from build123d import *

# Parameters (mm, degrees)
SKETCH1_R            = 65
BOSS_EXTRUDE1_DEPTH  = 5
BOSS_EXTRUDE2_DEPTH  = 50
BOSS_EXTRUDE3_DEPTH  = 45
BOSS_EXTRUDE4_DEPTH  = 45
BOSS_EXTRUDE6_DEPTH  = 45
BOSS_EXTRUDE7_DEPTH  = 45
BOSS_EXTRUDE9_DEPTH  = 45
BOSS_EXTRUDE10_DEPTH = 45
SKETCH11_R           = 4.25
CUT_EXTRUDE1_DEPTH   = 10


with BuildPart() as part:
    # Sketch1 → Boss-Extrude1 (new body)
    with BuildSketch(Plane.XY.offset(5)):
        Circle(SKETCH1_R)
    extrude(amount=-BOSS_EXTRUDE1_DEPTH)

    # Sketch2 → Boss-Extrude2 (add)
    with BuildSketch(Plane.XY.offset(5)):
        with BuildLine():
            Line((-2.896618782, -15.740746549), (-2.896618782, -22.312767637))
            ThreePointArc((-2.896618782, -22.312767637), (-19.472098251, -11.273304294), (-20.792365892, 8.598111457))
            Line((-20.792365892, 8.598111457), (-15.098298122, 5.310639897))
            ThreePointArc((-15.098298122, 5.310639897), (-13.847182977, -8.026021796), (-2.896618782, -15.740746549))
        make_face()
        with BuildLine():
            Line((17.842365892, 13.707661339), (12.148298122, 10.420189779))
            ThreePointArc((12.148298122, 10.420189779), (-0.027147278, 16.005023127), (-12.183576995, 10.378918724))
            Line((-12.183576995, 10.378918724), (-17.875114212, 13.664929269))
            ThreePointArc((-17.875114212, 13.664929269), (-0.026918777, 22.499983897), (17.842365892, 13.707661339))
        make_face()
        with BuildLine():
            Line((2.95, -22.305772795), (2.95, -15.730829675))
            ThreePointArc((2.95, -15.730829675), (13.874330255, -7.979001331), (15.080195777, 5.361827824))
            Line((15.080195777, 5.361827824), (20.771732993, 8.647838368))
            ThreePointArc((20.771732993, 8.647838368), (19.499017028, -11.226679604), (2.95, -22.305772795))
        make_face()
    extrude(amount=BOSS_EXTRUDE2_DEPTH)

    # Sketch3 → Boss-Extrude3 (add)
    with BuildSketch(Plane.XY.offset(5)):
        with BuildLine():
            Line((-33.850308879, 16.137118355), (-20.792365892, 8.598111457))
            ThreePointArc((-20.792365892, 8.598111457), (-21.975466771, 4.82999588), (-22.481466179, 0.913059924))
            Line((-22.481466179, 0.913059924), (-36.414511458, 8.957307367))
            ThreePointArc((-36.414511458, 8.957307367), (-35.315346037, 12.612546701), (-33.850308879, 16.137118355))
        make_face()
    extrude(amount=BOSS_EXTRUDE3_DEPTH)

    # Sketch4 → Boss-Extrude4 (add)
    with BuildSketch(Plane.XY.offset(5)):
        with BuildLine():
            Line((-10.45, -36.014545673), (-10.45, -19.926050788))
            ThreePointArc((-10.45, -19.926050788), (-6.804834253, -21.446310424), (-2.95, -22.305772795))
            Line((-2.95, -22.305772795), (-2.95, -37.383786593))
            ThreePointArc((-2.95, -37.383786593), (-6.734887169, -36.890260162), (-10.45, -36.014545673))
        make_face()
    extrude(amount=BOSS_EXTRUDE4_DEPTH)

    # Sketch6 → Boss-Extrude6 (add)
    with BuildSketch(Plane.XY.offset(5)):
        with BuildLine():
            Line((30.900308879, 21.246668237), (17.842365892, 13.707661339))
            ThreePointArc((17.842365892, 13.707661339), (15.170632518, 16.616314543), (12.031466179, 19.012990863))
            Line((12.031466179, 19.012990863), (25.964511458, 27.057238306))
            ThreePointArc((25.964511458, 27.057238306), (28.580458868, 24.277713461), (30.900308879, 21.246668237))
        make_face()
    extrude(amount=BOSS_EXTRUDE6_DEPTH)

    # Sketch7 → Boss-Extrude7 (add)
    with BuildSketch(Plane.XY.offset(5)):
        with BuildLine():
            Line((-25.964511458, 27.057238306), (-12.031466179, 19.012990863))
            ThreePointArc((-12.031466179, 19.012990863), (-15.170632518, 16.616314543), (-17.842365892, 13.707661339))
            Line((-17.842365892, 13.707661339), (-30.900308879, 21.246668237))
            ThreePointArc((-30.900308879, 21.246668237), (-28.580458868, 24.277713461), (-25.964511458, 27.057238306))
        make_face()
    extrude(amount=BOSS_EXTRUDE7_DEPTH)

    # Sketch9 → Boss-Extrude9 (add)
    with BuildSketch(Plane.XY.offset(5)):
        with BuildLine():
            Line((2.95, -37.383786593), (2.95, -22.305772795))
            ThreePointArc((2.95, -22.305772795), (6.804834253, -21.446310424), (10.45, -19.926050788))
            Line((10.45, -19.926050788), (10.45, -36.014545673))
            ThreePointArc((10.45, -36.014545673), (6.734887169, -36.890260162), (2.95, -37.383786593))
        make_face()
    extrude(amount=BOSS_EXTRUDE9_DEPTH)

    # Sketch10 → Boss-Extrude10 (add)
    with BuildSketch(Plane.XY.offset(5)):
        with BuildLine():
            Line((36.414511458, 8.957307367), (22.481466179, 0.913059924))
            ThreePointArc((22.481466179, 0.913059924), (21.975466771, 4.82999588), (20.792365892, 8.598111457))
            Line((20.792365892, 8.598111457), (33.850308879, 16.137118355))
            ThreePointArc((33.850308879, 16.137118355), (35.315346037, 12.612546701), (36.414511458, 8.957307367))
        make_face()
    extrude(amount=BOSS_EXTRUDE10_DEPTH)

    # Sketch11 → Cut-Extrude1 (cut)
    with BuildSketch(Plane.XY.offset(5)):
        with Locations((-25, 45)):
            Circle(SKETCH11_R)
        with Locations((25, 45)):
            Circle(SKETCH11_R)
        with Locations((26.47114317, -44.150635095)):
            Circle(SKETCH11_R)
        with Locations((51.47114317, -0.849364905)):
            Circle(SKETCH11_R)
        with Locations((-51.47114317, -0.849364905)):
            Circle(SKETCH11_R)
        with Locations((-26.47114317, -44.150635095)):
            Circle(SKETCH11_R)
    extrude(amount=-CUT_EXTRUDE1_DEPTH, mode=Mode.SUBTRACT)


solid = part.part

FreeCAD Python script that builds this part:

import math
import FreeCAD as App
import Part
import Sketcher
from FreeCAD import Vector
Q = App.Units.Quantity

doc = App.newDocument("Part")
body = doc.addObject("PartDesign::Body", "Body")

# Sketch on XY plane
sketch1 = body.newObject("Sketcher::SketchObject", "Sketch")
sketch1.AttachmentSupport = (doc.getObject("XY_Plane"), [""])
sketch1.MapMode = "FlatFace"
sketch1.AttachmentOffset = App.Placement(Vector(0, 0, 5), App.Rotation())
sketch1.addGeometry(Part.Circle(Vector(0, 0, 0), Vector(0, 0, 1), 65), False)
sketch1.addConstraint([
    Sketcher.Constraint("Coincident", 0, 3, -1, 1),
    Sketcher.Constraint("Diameter", 0, Q("130 mm")),
])
pad1 = body.newObject("PartDesign::Pad", "Pad")
pad1.Profile = sketch1
pad1.Length = 5
pad1.Reversed = True

# Sketch on XY plane
sketch2 = body.newObject("Sketcher::SketchObject", "Sketch001")
sketch2.AttachmentSupport = (doc.getObject("XY_Plane"), [""])
sketch2.MapMode = "FlatFace"
sketch2.AttachmentOffset = App.Placement(Vector(0, 0, 5), App.Rotation())
sketch2.addGeometry([
    Part.LineSegment(Vector(-2.896619, -22.312768, 0), Vector(-2.896619, -15.740747, 0)),  # 0
    Part.ArcOfCircle(Part.Circle(Vector(0, 0, 0), Vector(0, 0, 1), 16.005046), math.radians(160.621307), math.radians(259.57306)),  # 1
    Part.LineSegment(Vector(-15.098298, 5.31064, 0), Vector(-20.792366, 8.598111, 0)),  # 2
    Part.ArcOfCircle(Part.Circle(Vector(0, 0, 0), Vector(0, 0, 1), 22.5), math.radians(157.533804), math.radians(262.603292)),  # 3
    Part.LineSegment(Vector(12.148298, 10.42019, 0), Vector(17.842366, 13.707661, 0)),  # 4
    Part.ArcOfCircle(Part.Circle(Vector(0, 0, 0), Vector(0, 0, 1), 22.5), math.radians(37.533804), math.radians(142.603292)),  # 5
    Part.LineSegment(Vector(-17.875114, 13.664929, 0), Vector(-12.183577, 10.378919, 0)),  # 6
    Part.ArcOfCircle(Part.Circle(Vector(0, 0, 0), Vector(0, 0, 1), 16.005046), math.radians(40.621307), math.radians(139.57306)),  # 7
    Part.LineSegment(Vector(2.95, -15.73083, 0), Vector(2.95, -22.305773, 0)),  # 8
    Part.ArcOfCircle(Part.Circle(Vector(0, 0, 0), Vector(0, 0, 1), 22.5), math.radians(-82.466196), math.radians(22.603292)),  # 9
    Part.LineSegment(Vector(20.771733, 8.647838, 0), Vector(15.080196, 5.361828, 0)),  # 10
    Part.ArcOfCircle(Part.Circle(Vector(0, 0, 0), Vector(0, 0, 1), 16.005046), math.radians(-79.378693), math.radians(19.57306)),  # 11
], False)
sketch2.addConstraint([
    Sketcher.Constraint("Coincident", 0, 2, 1, 2),
    Sketcher.Constraint("Coincident", 1, 1, 2, 1),
    Sketcher.Constraint("Coincident", 2, 2, 3, 1),
    Sketcher.Constraint("Coincident", 3, 2, 0, 1),
    Sketcher.Constraint("Coincident", 4, 2, 5, 1),
    Sketcher.Constraint("Coincident", 5, 2, 6, 1),
    Sketcher.Constraint("Coincident", 6, 2, 7, 2),
    Sketcher.Constraint("Coincident", 7, 1, 4, 1),
    Sketcher.Constraint("Coincident", 8, 2, 9, 1),
    Sketcher.Constraint("Coincident", 9, 2, 10, 1),
    Sketcher.Constraint("Coincident", 10, 2, 11, 2),
    Sketcher.Constraint("Coincident", 11, 1, 8, 1),
    Sketcher.Constraint("Vertical", 0),
    Sketcher.Constraint("Vertical", 8),
    Sketcher.Constraint("Coincident", 1, 3, -1, 1),
    Sketcher.Constraint("Coincident", 3, 3, -1, 1),
    Sketcher.Constraint("Coincident", 5, 3, -1, 1),
    Sketcher.Constraint("Coincident", 7, 3, -1, 1),
    Sketcher.Constraint("Coincident", 9, 3, -1, 1),
    Sketcher.Constraint("Coincident", 11, 3, -1, 1),
    Sketcher.Constraint("Equal", 3, 5),
    Sketcher.Constraint("Equal", 1, 7),
    Sketcher.Constraint("Equal", 5, 9),
    Sketcher.Constraint("Equal", 7, 11),
    Sketcher.Constraint("Parallel", 2, 6),
    Sketcher.Constraint("Parallel", 4, 10),
    Sketcher.Constraint("Equal", 2, 4),
    Sketcher.Constraint("Equal", 6, 10),
    Sketcher.Constraint("Radius", 3, Q("22.5 mm")),
    Sketcher.Constraint("Angle", 2, Q("150 deg")),
    Sketcher.Constraint("Angle", 4, Q("30 deg")),
    Sketcher.Constraint("DistanceX", -1, 1, 8, 2, Q("2.95 mm")),
    Sketcher.Constraint("Radius", 1, Q("16.005046 mm")),
    Sketcher.Constraint("DistanceY", 0, 1, 0, 2, Q("6.572021 mm")),
    Sketcher.Constraint("DistanceX", 1, 1, -1, 1, Q("15.098298 mm")),
    Sketcher.Constraint("Distance", 6, Q("6.572021 mm")),
])
pad2 = body.newObject("PartDesign::Pad", "Pad001")
pad2.Profile = sketch2
pad2.Length = 50

# Sketch on XY plane
sketch3 = body.newObject("Sketcher::SketchObject", "Sketch002")
sketch3.AttachmentSupport = (doc.getObject("XY_Plane"), [""])
sketch3.MapMode = "FlatFace"
sketch3.AttachmentOffset = App.Placement(Vector(0, 0, 5), App.Rotation())
sketch3.addGeometry([
    Part.LineSegment(Vector(-20.792366, 8.598111, 0), Vector(-33.850309, 16.137118, 0)),
    Part.ArcOfCircle(Part.Circle(Vector(0, 0, 0), Vector(0, 0, 1), 37.5), math.radians(154.51193), math.radians(166.180643)),
    Part.LineSegment(Vector(-36.414511, 8.957307, 0), Vector(-22.481466, 0.91306, 0)),
    Part.ArcOfCircle(Part.Circle(Vector(0, 0, 0), Vector(0, 0, 1), 22.5), math.radians(157.533804), math.radians(177.674273)),
], False)
sketch3.addConstraint([
    Sketcher.Constraint("Coincident", 0, 2, 1, 1),
    Sketcher.Constraint("Coincident", 1, 2, 2, 1),
    Sketcher.Constraint("Coincident", 2, 2, 3, 2),
    Sketcher.Constraint("Coincident", 3, 1, 0, 1),
    Sketcher.Constraint("Coincident", 1, 3, -1, 1),
    Sketcher.Constraint("Coincident", 3, 3, -1, 1),
    Sketcher.Constraint("Parallel", 0, 2),
    Sketcher.Constraint("Radius", 1, Q("37.5 mm")),
    Sketcher.Constraint("Radius", 3, Q("22.5 mm")),
    Sketcher.Constraint("Angle", 0, Q("150 deg")),
    Sketcher.Constraint("DistanceX", 2, 2, 3, 1, Q("1.6891 mm")),
    Sketcher.Constraint("DistanceX", 0, 2, -1, 1, Q("33.850309 mm")),
])
pad3 = body.newObject("PartDesign::Pad", "Pad002")
pad3.Profile = sketch3
pad3.Length = 45

# Sketch on XY plane
sketch4 = body.newObject("Sketcher::SketchObject", "Sketch003")
sketch4.AttachmentSupport = (doc.getObject("XY_Plane"), [""])
sketch4.MapMode = "FlatFace"
sketch4.AttachmentOffset = App.Placement(Vector(0, 0, 5), App.Rotation())
sketch4.addGeometry([
    Part.LineSegment(Vector(-10.45, -19.926051, 0), Vector(-10.45, -36.014546, 0)),
    Part.ArcOfCircle(Part.Circle(Vector(0, 0, 0), Vector(0, 0, 1), 37.5), math.radians(-106.180643), math.radians(-94.51193)),
    Part.LineSegment(Vector(-2.95, -37.383787, 0), Vector(-2.95, -22.305773, 0)),
    Part.ArcOfCircle(Part.Circle(Vector(0, 0, 0), Vector(0, 0, 1), 22.5), math.radians(-117.674273), math.radians(-97.533804)),
], False)
sketch4.addConstraint([
    Sketcher.Constraint("Coincident", 0, 2, 1, 1),
    Sketcher.Constraint("Coincident", 1, 2, 2, 1),
    Sketcher.Constraint("Coincident", 2, 2, 3, 2),
    Sketcher.Constraint("Coincident", 3, 1, 0, 1),
    Sketcher.Constraint("Vertical", 0),
    Sketcher.Constraint("Vertical", 2),
    Sketcher.Constraint("Coincident", 1, 3, -1, 1),
    Sketcher.Constraint("Coincident", 3, 3, -1, 1),
    Sketcher.Constraint("Radius", 1, Q("37.5 mm")),
    Sketcher.Constraint("Radius", 3, Q("22.5 mm")),
    Sketcher.Constraint("DistanceX", 0, 2, 1, 2, Q("7.5 mm")),
    Sketcher.Constraint("DistanceX", 0, 2, -1, 1, Q("10.45 mm")),
])
pad4 = body.newObject("PartDesign::Pad", "Pad003")
pad4.Profile = sketch4
pad4.Length = 45

# Sketch on XY plane
sketch5 = body.newObject("Sketcher::SketchObject", "Sketch004")
sketch5.AttachmentSupport = (doc.getObject("XY_Plane"), [""])
sketch5.MapMode = "FlatFace"
sketch5.AttachmentOffset = App.Placement(Vector(0, 0, 5), App.Rotation())
sketch5.addGeometry([
    Part.LineSegment(Vector(17.842366, 13.707661, 0), Vector(30.900309, 21.246668, 0)),
    Part.ArcOfCircle(Part.Circle(Vector(0, 0, 0), Vector(0, 0, 1), 37.5), math.radians(34.51193), math.radians(46.180643)),
    Part.LineSegment(Vector(25.964511, 27.057238, 0), Vector(12.031466, 19.012991, 0)),
    Part.ArcOfCircle(Part.Circle(Vector(0, 0, 0), Vector(0, 0, 1), 22.5), math.radians(37.533804), math.radians(57.674273)),
], False)
sketch5.addConstraint([
    Sketcher.Constraint("Coincident", 0, 2, 1, 1),
    Sketcher.Constraint("Coincident", 1, 2, 2, 1),
    Sketcher.Constraint("Coincident", 2, 2, 3, 2),
    Sketcher.Constraint("Coincident", 3, 1, 0, 1),
    Sketcher.Constraint("Coincident", 1, 3, -1, 1),
    Sketcher.Constraint("Coincident", 3, 3, -1, 1),
    Sketcher.Constraint("Parallel", 0, 2),
    Sketcher.Constraint("Radius", 1, Q("37.5 mm")),
    Sketcher.Constraint("Radius", 3, Q("22.5 mm")),
    Sketcher.Constraint("Angle", 0, Q("30 deg")),
    Sketcher.Constraint("DistanceX", 2, 2, 3, 1, Q("5.8109 mm")),
    Sketcher.Constraint("DistanceX", -1, 1, 0, 2, Q("30.900309 mm")),
])
pad5 = body.newObject("PartDesign::Pad", "Pad004")
pad5.Profile = sketch5
pad5.Length = 45

# Sketch on XY plane
sketch6 = body.newObject("Sketcher::SketchObject", "Sketch005")
sketch6.AttachmentSupport = (doc.getObject("XY_Plane"), [""])
sketch6.MapMode = "FlatFace"
sketch6.AttachmentOffset = App.Placement(Vector(0, 0, 5), App.Rotation())
sketch6.addGeometry([
    Part.LineSegment(Vector(-12.031466, 19.012991, 0), Vector(-25.964511, 27.057238, 0)),
    Part.ArcOfCircle(Part.Circle(Vector(0, 0, 0), Vector(0, 0, 1), 37.5), math.radians(133.819357), math.radians(145.48807)),
    Part.LineSegment(Vector(-30.900309, 21.246668, 0), Vector(-17.842366, 13.707661, 0)),
    Part.ArcOfCircle(Part.Circle(Vector(0, 0, 0), Vector(0, 0, 1), 22.5), math.radians(122.325727), math.radians(142.466196)),
], False)
sketch6.addConstraint([
    Sketcher.Constraint("Coincident", 0, 2, 1, 1),
    Sketcher.Constraint("Coincident", 1, 2, 2, 1),
    Sketcher.Constraint("Coincident", 2, 2, 3, 2),
    Sketcher.Constraint("Coincident", 3, 1, 0, 1),
    Sketcher.Constraint("Coincident", 1, 3, -1, 1),
    Sketcher.Constraint("Coincident", 3, 3, -1, 1),
    Sketcher.Constraint("Parallel", 0, 2),
    Sketcher.Constraint("Radius", 1, Q("37.5 mm")),
    Sketcher.Constraint("Radius", 3, Q("22.5 mm")),
    Sketcher.Constraint("Angle", 0, Q("150 deg")),
    Sketcher.Constraint("DistanceX", 2, 2, 3, 1, Q("5.8109 mm")),
    Sketcher.Constraint("DistanceX", 0, 2, -1, 1, Q("25.964511 mm")),
])
pad6 = body.newObject("PartDesign::Pad", "Pad005")
pad6.Profile = sketch6
pad6.Length = 45

# Sketch on XY plane
sketch7 = body.newObject("Sketcher::SketchObject", "Sketch006")
sketch7.AttachmentSupport = (doc.getObject("XY_Plane"), [""])
sketch7.MapMode = "FlatFace"
sketch7.AttachmentOffset = App.Placement(Vector(0, 0, 5), App.Rotation())
sketch7.addGeometry([
    Part.LineSegment(Vector(2.95, -22.305773, 0), Vector(2.95, -37.383787, 0)),
    Part.ArcOfCircle(Part.Circle(Vector(0, 0, 0), Vector(0, 0, 1), 37.5), math.radians(-85.48807), math.radians(-73.819357)),
    Part.LineSegment(Vector(10.45, -36.014546, 0), Vector(10.45, -19.926051, 0)),
    Part.ArcOfCircle(Part.Circle(Vector(0, 0, 0), Vector(0, 0, 1), 22.5), math.radians(-82.466196), math.radians(-62.325727)),
], False)
sketch7.addConstraint([
    Sketcher.Constraint("Coincident", 0, 2, 1, 1),
    Sketcher.Constraint("Coincident", 1, 2, 2, 1),
    Sketcher.Constraint("Coincident", 2, 2, 3, 2),
    Sketcher.Constraint("Coincident", 3, 1, 0, 1),
    Sketcher.Constraint("Vertical", 0),
    Sketcher.Constraint("Vertical", 2),
    Sketcher.Constraint("Coincident", 1, 3, -1, 1),
    Sketcher.Constraint("Coincident", 3, 3, -1, 1),
    Sketcher.Constraint("Radius", 1, Q("37.5 mm")),
    Sketcher.Constraint("Radius", 3, Q("22.5 mm")),
    Sketcher.Constraint("DistanceX", 0, 2, 1, 2, Q("7.5 mm")),
    Sketcher.Constraint("DistanceX", -1, 1, 0, 2, Q("2.95 mm")),
])
pad7 = body.newObject("PartDesign::Pad", "Pad006")
pad7.Profile = sketch7
pad7.Length = 45

# Sketch on XY plane
sketch8 = body.newObject("Sketcher::SketchObject", "Sketch007")
sketch8.AttachmentSupport = (doc.getObject("XY_Plane"), [""])
sketch8.MapMode = "FlatFace"
sketch8.AttachmentOffset = App.Placement(Vector(0, 0, 5), App.Rotation())
sketch8.addGeometry([
    Part.LineSegment(Vector(22.481466, 0.91306, 0), Vector(36.414511, 8.957307, 0)),
    Part.ArcOfCircle(Part.Circle(Vector(0, 0, 0), Vector(0, 0, 1), 37.5), math.radians(13.819357), math.radians(25.48807)),
    Part.LineSegment(Vector(33.850309, 16.137118, 0), Vector(20.792366, 8.598111, 0)),
    Part.ArcOfCircle(Part.Circle(Vector(0, 0, 0), Vector(0, 0, 1), 22.5), math.radians(2.325727), math.radians(22.466196)),
], False)
sketch8.addConstraint([
    Sketcher.Constraint("Coincident", 0, 2, 1, 1),
    Sketcher.Constraint("Coincident", 1, 2, 2, 1),
    Sketcher.Constraint("Coincident", 2, 2, 3, 2),
    Sketcher.Constraint("Coincident", 3, 1, 0, 1),
    Sketcher.Constraint("Coincident", 1, 3, -1, 1),
    Sketcher.Constraint("Coincident", 3, 3, -1, 1),
    Sketcher.Constraint("Parallel", 0, 2),
    Sketcher.Constraint("Radius", 1, Q("37.5 mm")),
    Sketcher.Constraint("Radius", 3, Q("22.5 mm")),
    Sketcher.Constraint("Angle", 0, Q("30 deg")),
    Sketcher.Constraint("DistanceX", 2, 2, 3, 1, Q("1.6891 mm")),
    Sketcher.Constraint("DistanceX", -1, 1, 0, 2, Q("36.414511 mm")),
])
pad8 = body.newObject("PartDesign::Pad", "Pad007")
pad8.Profile = sketch8
pad8.Length = 45

# Sketch on XY plane
sketch9 = body.newObject("Sketcher::SketchObject", "Sketch008")
sketch9.AttachmentSupport = (doc.getObject("XY_Plane"), [""])
sketch9.MapMode = "FlatFace"
sketch9.AttachmentOffset = App.Placement(Vector(0, 0, 5), App.Rotation())
sketch9.addGeometry([
    Part.Circle(Vector(-25, 45, 0), Vector(0, 0, 1), 4.25),  # 0
    Part.Circle(Vector(25, 45, 0), Vector(0, 0, 1), 4.25),  # 1
    Part.Circle(Vector(26.471143, -44.150635, 0), Vector(0, 0, 1), 4.25),  # 2
    Part.Circle(Vector(51.471143, -0.849365, 0), Vector(0, 0, 1), 4.25),  # 3
    Part.Circle(Vector(-51.471143, -0.849365, 0), Vector(0, 0, 1), 4.25),  # 4
    Part.Circle(Vector(-26.471143, -44.150635, 0), Vector(0, 0, 1), 4.25),  # 5
], False)
sketch9.addConstraint([
    Sketcher.Constraint("Equal", 0, 1),
    Sketcher.Constraint("Equal", 1, 2),
    Sketcher.Constraint("Equal", 2, 3),
    Sketcher.Constraint("Equal", 3, 4),
    Sketcher.Constraint("Equal", 4, 5),
    Sketcher.Constraint("Symmetric", 0, 3, 1, 3, -2),
    Sketcher.Constraint("Symmetric", 3, 3, 4, 3, -2),
    Sketcher.Constraint("Symmetric", 2, 3, 5, 3, -2),
    Sketcher.Constraint("Diameter", 0, Q("8.5 mm")),
    Sketcher.Constraint("DistanceX", 0, 3, -1, 1, Q("25 mm")),
    Sketcher.Constraint("DistanceY", -1, 1, 0, 3, Q("45 mm")),
    Sketcher.Constraint("DistanceX", 2, 3, 3, 3, Q("25 mm")),
    Sketcher.Constraint("DistanceY", 2, 3, 3, 3, Q("43.30127 mm")),
    Sketcher.Constraint("DistanceX", -1, 1, 2, 3, Q("26.471143 mm")),
    Sketcher.Constraint("DistanceY", 2, 3, -1, 1, Q("44.150635 mm")),
])
pocket1 = body.newObject("PartDesign::Pocket", "Pocket")
pocket1.Profile = sketch9
pocket1.Length = 10

doc.recompute()
